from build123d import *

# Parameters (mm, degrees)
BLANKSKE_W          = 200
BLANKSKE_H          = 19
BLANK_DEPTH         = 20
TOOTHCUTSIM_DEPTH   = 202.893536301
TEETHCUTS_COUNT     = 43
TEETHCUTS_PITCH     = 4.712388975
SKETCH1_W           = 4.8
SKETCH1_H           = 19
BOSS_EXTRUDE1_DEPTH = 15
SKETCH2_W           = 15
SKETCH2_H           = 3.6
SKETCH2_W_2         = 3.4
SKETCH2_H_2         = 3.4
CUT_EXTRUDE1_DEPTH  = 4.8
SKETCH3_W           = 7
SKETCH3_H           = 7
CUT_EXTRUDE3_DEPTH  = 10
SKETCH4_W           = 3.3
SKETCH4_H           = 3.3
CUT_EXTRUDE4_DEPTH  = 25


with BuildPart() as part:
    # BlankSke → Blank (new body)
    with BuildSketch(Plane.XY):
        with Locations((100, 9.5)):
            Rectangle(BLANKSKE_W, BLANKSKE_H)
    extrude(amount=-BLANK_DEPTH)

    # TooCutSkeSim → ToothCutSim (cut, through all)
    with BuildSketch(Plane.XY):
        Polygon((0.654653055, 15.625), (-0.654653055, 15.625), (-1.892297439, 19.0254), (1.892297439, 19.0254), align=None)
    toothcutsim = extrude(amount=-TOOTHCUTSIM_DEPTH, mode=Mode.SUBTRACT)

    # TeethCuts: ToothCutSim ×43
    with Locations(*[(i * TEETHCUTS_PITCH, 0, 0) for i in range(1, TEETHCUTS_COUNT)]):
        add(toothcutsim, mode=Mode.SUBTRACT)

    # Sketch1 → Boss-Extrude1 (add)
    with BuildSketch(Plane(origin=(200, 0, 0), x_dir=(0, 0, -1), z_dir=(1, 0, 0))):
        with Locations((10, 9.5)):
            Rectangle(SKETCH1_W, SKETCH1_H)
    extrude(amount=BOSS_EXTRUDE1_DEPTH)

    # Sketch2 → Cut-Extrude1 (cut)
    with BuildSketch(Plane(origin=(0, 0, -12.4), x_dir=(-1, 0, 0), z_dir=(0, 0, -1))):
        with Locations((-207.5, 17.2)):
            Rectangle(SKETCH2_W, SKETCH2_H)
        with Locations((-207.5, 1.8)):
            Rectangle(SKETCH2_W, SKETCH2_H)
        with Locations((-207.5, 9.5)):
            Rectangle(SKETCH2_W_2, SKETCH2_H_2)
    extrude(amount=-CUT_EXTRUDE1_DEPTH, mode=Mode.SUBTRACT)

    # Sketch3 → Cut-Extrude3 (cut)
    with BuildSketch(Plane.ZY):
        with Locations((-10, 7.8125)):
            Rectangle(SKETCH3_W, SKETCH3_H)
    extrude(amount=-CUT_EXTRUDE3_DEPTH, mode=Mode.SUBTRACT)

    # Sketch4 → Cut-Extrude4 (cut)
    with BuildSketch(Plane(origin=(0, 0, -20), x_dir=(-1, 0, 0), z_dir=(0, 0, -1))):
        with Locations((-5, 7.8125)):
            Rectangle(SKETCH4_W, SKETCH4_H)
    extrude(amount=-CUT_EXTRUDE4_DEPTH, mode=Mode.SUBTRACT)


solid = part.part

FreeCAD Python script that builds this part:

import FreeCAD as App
import Part
import Sketcher
Q = App.Units.Quantity

doc = App.newDocument("Part")
body = doc.addObject("PartDesign::Body", "Body")

# Sketch on XY plane
sketch1 = body.newObject("Sketcher::SketchObject", "Sketch")
sketch1.AttachmentSupport = (doc.getObject("XY_Plane"), [""])
sketch1.MapMode = "FlatFace"
sketch1.addGeometry(Part.LineSegment(App.Vector(0, 19, 0), App.Vector(0, 0, 0)), False)
sketch1.addGeometry(Part.LineSegment(App.Vector(0, 0, 0), App.Vector(200, 0, 0)), False)
sketch1.addGeometry(Part.LineSegment(App.Vector(200, 0, 0), App.Vector(200, 19, 0)), False)
sketch1.addGeometry(Part.LineSegment(App.Vector(200, 19, 0), App.Vector(0, 19, 0)), False)
sketch1.addConstraint(Sketcher.Constraint("Coincident", 0, 2, 1, 1))
sketch1.addConstraint(Sketcher.Constraint("Coincident", 1, 2, 2, 1))
sketch1.addConstraint(Sketcher.Constraint("Coincident", 2, 2, 3, 1))
sketch1.addConstraint(Sketcher.Constraint("Coincident", 3, 2, 0, 1))
sketch1.addConstraint(Sketcher.Constraint("Vertical", 0))
sketch1.addConstraint(Sketcher.Constraint("Horizontal", 1))
sketch1.addConstraint(Sketcher.Constraint("Vertical", 2))
sketch1.addConstraint(Sketcher.Constraint("Horizontal", 3))
sketch1.addConstraint(Sketcher.Constraint("Coincident", 0, 2, -1, 1))
sketch1.addConstraint(Sketcher.Constraint("DistanceX", 1, 1, 1, 2, Q("200 mm")))
sketch1.addConstraint(Sketcher.Constraint("DistanceY", 0, 2, 0, 1, Q("19 mm")))
pad1 = body.newObject("PartDesign::Pad", "Pad")
pad1.Profile = sketch1
pad1.Length = 20
pad1.Reversed = True

# Sketch on XY plane
sketch2 = body.newObject("Sketcher::SketchObject", "Sketch001")
sketch2.AttachmentSupport = (doc.getObject("XY_Plane"), [""])
sketch2.MapMode = "FlatFace"
sketch2.addGeometry(Part.LineSegment(App.Vector(-0.7, 15.6, 0), App.Vector(0.7, 15.6, 0)), False)
sketch2.addGeometry(Part.LineSegment(App.Vector(0.7, 15.6, 0), App.Vector(1.9, 19, 0)), False)
sketch2.addGeometry(Part.LineSegment(App.Vector(1.9, 19, 0), App.Vector(-1.9, 19, 0)), False)
sketch2.addGeometry(Part.LineSegment(App.Vector(-1.9, 19, 0), App.Vector(-0.7, 15.6, 0)), False)
sketch2.addConstraint(Sketcher.Constraint("Coincident", 0, 2, 1, 1))
sketch2.addConstraint(Sketcher.Constraint("Coincident", 1, 2, 2, 1))
sketch2.addConstraint(Sketcher.Constraint("Coincident", 2, 2, 3, 1))
sketch2.addConstraint(Sketcher.Constraint("Coincident", 3, 2, 0, 1))
sketch2.addConstraint(Sketcher.Constraint("Horizontal", 0))
sketch2.addConstraint(Sketcher.Constraint("Horizontal", 2))
sketch2.addConstraint(Sketcher.Constraint("Equal", 1, 3))
sketch2.addConstraint(Sketcher.Constraint("Angle", 1, Q("70 deg")))
sketch2.addConstraint(Sketcher.Constraint("DistanceY", -1, 1, 0, 2, Q("15.625 mm")))
sketch2.addConstraint(Sketcher.Constraint("DistanceY", -1, 1, 1, 2, Q("19.0254 mm")))
sketch2.addConstraint(Sketcher.Constraint("DistanceX", 0, 1, 0, 2, Q("1.309306 mm")))
sketch2.addConstraint(Sketcher.Constraint("DistanceX", -1, 1, 0, 2, Q("0.654653 mm")))
pocket1 = body.newObject("PartDesign::Pocket", "Pocket")
pocket1.Profile = sketch2
pocket1.Type = "ThroughAll"
doc.recompute()

linearpattern = body.newObject("PartDesign::LinearPattern", "LinearPattern")
linearpattern.Originals = [pocket1]
linearpattern.Direction = (doc.getObject("X_Axis"), [""])
linearpattern.Mode = "offset"
linearpattern.Offset = 4.712389
linearpattern.Occurrences = 43
body.Tip = linearpattern

# Sketch on YZ plane
sketch3 = body.newObject("Sketcher::SketchObject", "Sketch002")
sketch3.AttachmentSupport = (doc.getObject("YZ_Plane"), [""])
sketch3.MapMode = "FlatFace"
sketch3.AttachmentOffset = App.Placement(App.Vector(0, 0, 200), App.Rotation())
sketch3.addGeometry(Part.LineSegment(App.Vector(19, -7.6, 0), App.Vector(0, -7.6, 0)), False)
sketch3.addGeometry(Part.LineSegment(App.Vector(0, -7.6, 0), App.Vector(0, -12.4, 0)), False)
sketch3.addGeometry(Part.LineSegment(App.Vector(0, -12.4, 0), App.Vector(19, -12.4, 0)), False)
sketch3.addGeometry(Part.LineSegment(App.Vector(19, -12.4, 0), App.Vector(19, -7.6, 0)), False)
sketch3.addConstraint(Sketcher.Constraint("Coincident", 0, 2, 1, 1))
sketch3.addConstraint(Sketcher.Constraint("Coincident", 1, 2, 2, 1))
sketch3.addConstraint(Sketcher.Constraint("Coincident", 2, 2, 3, 1))
sketch3.addConstraint(Sketcher.Constraint("Coincident", 3, 2, 0, 1))
sketch3.addConstraint(Sketcher.Constraint("Horizontal", 0))
sketch3.addConstraint(Sketcher.Constraint("Vertical", 1))
sketch3.addConstraint(Sketcher.Constraint("Horizontal", 2))
sketch3.addConstraint(Sketcher.Constraint("Vertical", 3))
sketch3.addConstraint(Sketcher.Constraint("PointOnObject", 0, 2, -2))
sketch3.addConstraint(Sketcher.Constraint("DistanceX", 0, 2, 0, 1, Q("19 mm")))
sketch3.addConstraint(Sketcher.Constraint("DistanceY", 1, 2, 1, 1, Q("4.8 mm")))
sketch3.addConstraint(Sketcher.Constraint("DistanceY", 0, 2, -1, 1, Q("7.6 mm")))
pad2 = body.newObject("PartDesign::Pad", "Pad001")
pad2.Profile = sketch3
pad2.Length = 15

# Sketch on XY plane
sketch4 = body.newObject("Sketcher::SketchObject", "Sketch003")
sketch4.AttachmentSupport = (doc.getObject("XY_Plane"), [""])
sketch4.MapMode = "FlatFace"
sketch4.AttachmentOffset = App.Placement(App.Vector(0, 0, -12.4), App.Rotation())
sketch4.addGeometry(Part.LineSegment(App.Vector(215, 19, 0), App.Vector(215, 15.4, 0)), False)
sketch4.addGeometry(Part.LineSegment(App.Vector(215, 15.4, 0), App.Vector(200, 15.4, 0)), False)
sketch4.addGeometry(Part.LineSegment(App.Vector(200, 15.4, 0), App.Vector(200, 19, 0)), False)
sketch4.addGeometry(Part.LineSegment(App.Vector(200, 19, 0), App.Vector(215, 19, 0)), False)
sketch4.addGeometry(Part.LineSegment(App.Vector(215, 3.6, 0), App.Vector(215, 0, 0)), False)
sketch4.addGeometry(Part.LineSegment(App.Vector(215, 0, 0), App.Vector(200, 0, 0)), False)
sketch4.addGeometry(Part.LineSegment(App.Vector(200, 0, 0), App.Vector(200, 3.6, 0)), False)
sketch4.addGeometry(Part.LineSegment(App.Vector(200, 3.6, 0), App.Vector(215, 3.6, 0)), False)
sketch4.addGeometry(Part.LineSegment(App.Vector(209.2, 11.2, 0), App.Vector(209.2, 7.8, 0)), False)
sketch4.addGeometry(Part.LineSegment(App.Vector(209.2, 7.8, 0), App.Vector(205.8, 7.8, 0)), False)
sketch4.addGeometry(Part.LineSegment(App.Vector(205.8, 7.8, 0), App.Vector(205.8, 11.2, 0)), False)
sketch4.addGeometry(Part.LineSegment(App.Vector(205.8, 11.2, 0), App.Vector(209.2, 11.2, 0)), False)
sketch4.addConstraint(Sketcher.Constraint("Coincident", 0, 2, 1, 1))
sketch4.addConstraint(Sketcher.Constraint("Coincident", 1, 2, 2, 1))
sketch4.addConstraint(Sketcher.Constraint("Coincident", 2, 2, 3, 1))
sketch4.addConstraint(Sketcher.Constraint("Coincident", 3, 2, 0, 1))
sketch4.addConstraint(Sketcher.Constraint("Coincident", 4, 2, 5, 1))
sketch4.addConstraint(Sketcher.Constraint("Coincident", 5, 2, 6, 1))
sketch4.addConstraint(Sketcher.Constraint("Coincident", 6, 2, 7, 1))
sketch4.addConstraint(Sketcher.Constraint("Coincident", 7, 2, 4, 1))
sketch4.addConstraint(Sketcher.Constraint("Coincident", 8, 2, 9, 1))
sketch4.addConstraint(Sketcher.Constraint("Coincident", 9, 2, 10, 1))
sketch4.addConstraint(Sketcher.Constraint("Coincident", 10, 2, 11, 1))
sketch4.addConstraint(Sketcher.Constraint("Coincident", 11, 2, 8, 1))
sketch4.addConstraint(Sketcher.Constraint("Vertical", 0))
sketch4.addConstraint(Sketcher.Constraint("Horizontal", 1))
sketch4.addConstraint(Sketcher.Constraint("Vertical", 2))
sketch4.addConstraint(Sketcher.Constraint("Horizontal", 3))
sketch4.addConstraint(Sketcher.Constraint("Vertical", 4))
sketch4.addConstraint(Sketcher.Constraint("Horizontal", 5))
sketch4.addConstraint(Sketcher.Constraint("Vertical", 6))
sketch4.addConstraint(Sketcher.Constraint("Horizontal", 7))
sketch4.addConstraint(Sketcher.Constraint("Vertical", 8))
sketch4.addConstraint(Sketcher.Constraint("Horizontal", 9))
sketch4.addConstraint(Sketcher.Constraint("Vertical", 10))
sketch4.addConstraint(Sketcher.Constraint("Horizontal", 11))
sketch4.addConstraint(Sketcher.Constraint("PointOnObject", 4, 2, -1))
sketch4.addConstraint(Sketcher.Constraint("Vertical", 3, 2, 4, 2))
sketch4.addConstraint(Sketcher.Constraint("Vertical", 2, 2, 5, 2))
sketch4.addConstraint(Sketcher.Constraint("Equal", 2, 4))
sketch4.addConstraint(Sketcher.Constraint("Equal", 11, 8))
sketch4.addConstraint(Sketcher.Constraint("DistanceX", 1, 2, 1, 1, Q("15 mm")))
sketch4.addConstraint(Sketcher.Constraint("DistanceX", 9, 2, 9, 1, Q("3.4 mm")))
sketch4.addConstraint(Sketcher.Constraint("DistanceY", 0, 2, 0, 1, Q("3.6 mm")))
sketch4.addConstraint(Sketcher.Constraint("DistanceX", -1, 1, 0, 2, Q("215 mm")))
sketch4.addConstraint(Sketcher.Constraint("DistanceY", -1, 1, 2, 2, Q("19 mm")))
sketch4.addConstraint(Sketcher.Constraint("DistanceX", -1, 1, 8, 2, Q("209.2 mm")))
sketch4.addConstraint(Sketcher.Constraint("DistanceY", -1, 1, 8, 2, Q("7.8 mm")))
pocket2 = body.newObject("PartDesign::Pocket", "Pocket001")
pocket2.Profile = sketch4
pocket2.Length = 4.8
pocket2.Reversed = True

# Sketch on YZ plane
sketch5 = body.newObject("Sketcher::SketchObject", "Sketch004")
sketch5.AttachmentSupport = (doc.getObject("YZ_Plane"), [""])
sketch5.MapMode = "FlatFace"
sketch5.addGeometry(Part.LineSegment(App.Vector(11, -14, 0), App.Vector(4, -14, 0)), False)
sketch5.addGeometry(Part.LineSegment(App.Vector(4, -14, 0), App.Vector(4, -6, 0)), False)
sketch5.addGeometry(Part.LineSegment(App.Vector(4, -6, 0), App.Vector(11, -6, 0)), False)
sketch5.addGeometry(Part.LineSegment(App.Vector(11, -6, 0), App.Vector(11, -14, 0)), False)
sketch5.addConstraint(Sketcher.Constraint("Coincident", 0, 2, 1, 1))
sketch5.addConstraint(Sketcher.Constraint("Coincident", 1, 2, 2, 1))
sketch5.addConstraint(Sketcher.Constraint("Coincident", 2, 2, 3, 1))
sketch5.addConstraint(Sketcher.Constraint("Coincident", 3, 2, 0, 1))
sketch5.addConstraint(Sketcher.Constraint("Horizontal", 0))
sketch5.addConstraint(Sketcher.Constraint("Vertical", 1))
sketch5.addConstraint(Sketcher.Constraint("Horizontal", 2))
sketch5.addConstraint(Sketcher.Constraint("Vertical", 3))
sketch5.addConstraint(Sketcher.Constraint("Equal", 2, 1))
sketch5.addConstraint(Sketcher.Constraint("DistanceX", 0, 2, 0, 1, Q("7 mm")))
sketch5.addConstraint(Sketcher.Constraint("DistanceY", 0, 2, -1, 1, Q("13.5 mm")))
sketch5.addConstraint(Sketcher.Constraint("DistanceX", -1, 1, 0, 2, Q("4.3125 mm")))
pocket3 = body.newObject("PartDesign::Pocket", "Pocket002")
pocket3.Profile = sketch5
pocket3.Length = 10
pocket3.Reversed = True

# Sketch on XY plane
sketch6 = body.newObject("Sketcher::SketchObject", "Sketch005")
sketch6.AttachmentSupport = (doc.getObject("XY_Plane"), [""])
sketch6.MapMode = "FlatFace"
sketch6.AttachmentOffset = App.Placement(App.Vector(0, 0, -20), App.Rotation())
sketch6.addGeometry(Part.LineSegment(App.Vector(6.7, 9.5, 0), App.Vector(6.7, 6.2, 0)), False)
sketch6.addGeometry(Part.LineSegment(App.Vector(6.7, 6.2, 0), App.Vector(3.4, 6.2, 0)), False)
sketch6.addGeometry(Part.LineSegment(App.Vector(3.4, 6.2, 0), App.Vector(3.4, 9.5, 0)), False)
sketch6.addGeometry(Part.LineSegment(App.Vector(3.4, 9.5, 0), App.Vector(6.7, 9.5, 0)), False)
sketch6.addConstraint(Sketcher.Constraint("Coincident", 0, 2, 1, 1))
sketch6.addConstraint(Sketcher.Constraint("Coincident", 1, 2, 2, 1))
sketch6.addConstraint(Sketcher.Constraint("Coincident", 2, 2, 3, 1))
sketch6.addConstraint(Sketcher.Constraint("Coincident", 3, 2, 0, 1))
sketch6.addConstraint(Sketcher.Constraint("Vertical", 0))
sketch6.addConstraint(Sketcher.Constraint("Horizontal", 1))
sketch6.addConstraint(Sketcher.Constraint("Vertical", 2))
sketch6.addConstraint(Sketcher.Constraint("Horizontal", 3))
sketch6.addConstraint(Sketcher.Constraint("Equal", 3, 0))
sketch6.addConstraint(Sketcher.Constraint("DistanceX", 1, 2, 1, 1, Q("3.3 mm")))
sketch6.addConstraint(Sketcher.Constraint("DistanceX", -1, 1, 0, 2, Q("6.65 mm")))
sketch6.addConstraint(Sketcher.Constraint("DistanceY", -1, 1, 0, 2, Q("6.1625 mm")))
pocket4 = body.newObject("PartDesign::Pocket", "Pocket003")
pocket4.Profile = sketch6
pocket4.Length = 25
pocket4.Reversed = True

doc.recompute()
